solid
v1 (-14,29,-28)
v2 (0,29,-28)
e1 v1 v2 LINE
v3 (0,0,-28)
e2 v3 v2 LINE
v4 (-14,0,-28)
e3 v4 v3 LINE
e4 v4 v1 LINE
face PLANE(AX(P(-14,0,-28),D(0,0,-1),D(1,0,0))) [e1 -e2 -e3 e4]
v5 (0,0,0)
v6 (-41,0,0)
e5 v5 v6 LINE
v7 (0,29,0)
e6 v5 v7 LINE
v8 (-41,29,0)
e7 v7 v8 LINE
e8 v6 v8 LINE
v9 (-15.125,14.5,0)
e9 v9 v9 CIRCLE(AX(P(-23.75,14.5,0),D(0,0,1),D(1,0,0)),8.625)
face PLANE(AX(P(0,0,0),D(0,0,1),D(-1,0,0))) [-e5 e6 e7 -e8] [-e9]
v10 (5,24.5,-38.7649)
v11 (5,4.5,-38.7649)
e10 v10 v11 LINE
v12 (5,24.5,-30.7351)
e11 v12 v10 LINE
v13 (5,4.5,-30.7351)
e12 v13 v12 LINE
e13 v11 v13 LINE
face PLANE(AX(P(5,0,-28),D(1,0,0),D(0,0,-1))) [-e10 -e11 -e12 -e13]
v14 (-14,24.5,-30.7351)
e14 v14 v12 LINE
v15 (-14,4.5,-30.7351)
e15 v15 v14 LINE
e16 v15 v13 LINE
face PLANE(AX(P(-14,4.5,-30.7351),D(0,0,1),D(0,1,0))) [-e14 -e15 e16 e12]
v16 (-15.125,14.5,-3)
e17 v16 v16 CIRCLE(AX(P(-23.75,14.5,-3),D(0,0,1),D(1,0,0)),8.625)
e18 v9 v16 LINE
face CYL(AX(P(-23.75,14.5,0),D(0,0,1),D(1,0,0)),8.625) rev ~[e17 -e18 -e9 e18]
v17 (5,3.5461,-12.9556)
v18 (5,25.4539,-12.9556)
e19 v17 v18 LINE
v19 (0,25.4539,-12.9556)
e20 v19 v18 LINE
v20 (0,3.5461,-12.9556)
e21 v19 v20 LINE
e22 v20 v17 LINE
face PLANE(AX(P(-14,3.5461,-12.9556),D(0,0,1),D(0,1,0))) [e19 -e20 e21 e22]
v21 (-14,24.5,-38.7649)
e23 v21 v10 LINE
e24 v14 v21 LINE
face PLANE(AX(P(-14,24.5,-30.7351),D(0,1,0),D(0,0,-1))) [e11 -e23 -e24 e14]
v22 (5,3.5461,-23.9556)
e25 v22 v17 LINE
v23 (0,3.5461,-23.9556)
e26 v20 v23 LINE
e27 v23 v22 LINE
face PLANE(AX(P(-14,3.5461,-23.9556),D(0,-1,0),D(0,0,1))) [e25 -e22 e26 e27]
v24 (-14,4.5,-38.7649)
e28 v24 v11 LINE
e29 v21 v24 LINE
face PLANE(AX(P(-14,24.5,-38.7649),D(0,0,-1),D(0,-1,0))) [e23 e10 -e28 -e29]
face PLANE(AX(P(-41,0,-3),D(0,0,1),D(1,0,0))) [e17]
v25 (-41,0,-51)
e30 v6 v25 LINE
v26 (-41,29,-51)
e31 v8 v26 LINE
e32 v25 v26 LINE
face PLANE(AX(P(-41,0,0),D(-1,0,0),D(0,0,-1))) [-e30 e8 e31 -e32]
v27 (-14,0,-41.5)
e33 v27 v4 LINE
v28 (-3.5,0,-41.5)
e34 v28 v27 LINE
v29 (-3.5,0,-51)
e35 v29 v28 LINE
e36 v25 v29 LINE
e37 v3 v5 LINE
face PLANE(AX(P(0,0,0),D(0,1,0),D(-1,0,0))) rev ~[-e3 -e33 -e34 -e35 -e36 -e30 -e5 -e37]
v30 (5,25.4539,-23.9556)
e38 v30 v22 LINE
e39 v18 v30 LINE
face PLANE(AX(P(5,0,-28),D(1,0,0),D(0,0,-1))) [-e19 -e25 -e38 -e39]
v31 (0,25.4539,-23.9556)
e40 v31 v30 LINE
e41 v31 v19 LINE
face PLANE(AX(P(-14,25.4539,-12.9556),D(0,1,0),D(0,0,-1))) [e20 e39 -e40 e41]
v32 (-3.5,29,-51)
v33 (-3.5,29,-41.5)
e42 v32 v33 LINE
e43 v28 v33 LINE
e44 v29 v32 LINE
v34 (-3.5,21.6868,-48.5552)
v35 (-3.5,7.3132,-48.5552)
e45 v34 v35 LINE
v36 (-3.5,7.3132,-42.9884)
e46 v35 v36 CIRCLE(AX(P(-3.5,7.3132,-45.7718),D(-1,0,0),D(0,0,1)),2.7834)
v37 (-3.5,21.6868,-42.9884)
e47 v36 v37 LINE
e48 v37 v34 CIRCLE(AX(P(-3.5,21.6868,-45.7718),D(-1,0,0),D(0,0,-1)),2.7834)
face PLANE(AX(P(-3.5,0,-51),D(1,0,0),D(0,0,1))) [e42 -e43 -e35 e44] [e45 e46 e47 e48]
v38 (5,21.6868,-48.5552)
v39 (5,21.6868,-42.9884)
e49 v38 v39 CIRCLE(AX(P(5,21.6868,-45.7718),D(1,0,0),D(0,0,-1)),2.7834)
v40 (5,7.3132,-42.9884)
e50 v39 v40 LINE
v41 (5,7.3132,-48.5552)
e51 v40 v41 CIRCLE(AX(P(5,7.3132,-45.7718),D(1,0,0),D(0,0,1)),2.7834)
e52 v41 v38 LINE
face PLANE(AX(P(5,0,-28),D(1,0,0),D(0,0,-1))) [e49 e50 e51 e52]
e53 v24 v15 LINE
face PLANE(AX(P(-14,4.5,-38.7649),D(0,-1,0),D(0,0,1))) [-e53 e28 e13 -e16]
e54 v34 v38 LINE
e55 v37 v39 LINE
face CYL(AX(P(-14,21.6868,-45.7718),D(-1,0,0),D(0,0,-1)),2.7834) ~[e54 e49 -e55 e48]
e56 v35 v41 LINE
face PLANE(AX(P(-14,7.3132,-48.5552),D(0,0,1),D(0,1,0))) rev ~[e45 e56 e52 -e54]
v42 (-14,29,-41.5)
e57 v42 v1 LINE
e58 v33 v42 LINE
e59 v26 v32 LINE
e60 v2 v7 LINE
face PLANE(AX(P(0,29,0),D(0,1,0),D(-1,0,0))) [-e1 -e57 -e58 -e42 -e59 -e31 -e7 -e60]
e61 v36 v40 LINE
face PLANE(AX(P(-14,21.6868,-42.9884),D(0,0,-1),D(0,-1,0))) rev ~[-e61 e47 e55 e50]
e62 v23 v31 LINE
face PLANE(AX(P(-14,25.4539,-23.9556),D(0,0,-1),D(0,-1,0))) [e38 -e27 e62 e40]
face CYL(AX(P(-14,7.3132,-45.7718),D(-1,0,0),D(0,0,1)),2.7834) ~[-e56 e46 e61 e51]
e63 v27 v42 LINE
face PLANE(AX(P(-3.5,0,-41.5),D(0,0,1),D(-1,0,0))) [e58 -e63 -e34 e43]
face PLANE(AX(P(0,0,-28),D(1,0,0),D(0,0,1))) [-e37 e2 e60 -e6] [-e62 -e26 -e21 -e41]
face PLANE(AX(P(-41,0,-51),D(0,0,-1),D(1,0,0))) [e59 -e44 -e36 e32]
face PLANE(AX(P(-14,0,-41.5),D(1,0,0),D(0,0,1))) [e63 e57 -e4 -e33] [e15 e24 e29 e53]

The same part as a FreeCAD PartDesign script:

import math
import FreeCAD as App
import Part
import Sketcher

V = App.Vector
Q = App.Units.Quantity

doc = App.newDocument("Part")
params = doc.addObject("Spreadsheet::Sheet", "Params")
for row, (alias, value) in enumerate([
    ("sketch1_width", "41 mm"),
    ("sketch1_height", "51 mm"),
    ("sketch1_width2", "10.5 mm"),
    ("sketch1_width3", "37.5 mm"),
    ("sketch1_height2", "13.5 mm"),
    ("pad1_length", "29 mm"),
    ("sketch2_diameter", "17.25 mm"),
    ("pocket1_length", "3 mm"),
    ("sketch3_width", "20 mm"),
    ("sketch3_height", "11 mm"),
    ("pad2_length", "19 mm"),
], start=1):
    params.set(f"A{row}", alias)
    params.set(f"B{row}", "=" + value)
    params.setAlias(f"B{row}", alias)

body = doc.addObject("PartDesign::Body", "Body")

sketch1 = doc.addObject("Sketcher::SketchObject", "Sketch")
body.addObject(sketch1)
sketch1.AttachmentSupport = (doc.XZ_Plane, [""])
sketch1.MapMode = "FlatFace"
sketch1.addGeometry([
    Part.LineSegment(V(-41, 0, 0), V(0, 0, 0)),
    Part.LineSegment(V(0, 0, 0), V(0, -28, 0)),
    Part.LineSegment(V(0, -28, 0), V(-14, -28, 0)),
    Part.LineSegment(V(-14, -28, 0), V(-14, -42, 0)),
    Part.LineSegment(V(-14, -42, 0), V(-4, -42, 0)),
    Part.LineSegment(V(-4, -42, 0), V(-4, -51, 0)),
    Part.LineSegment(V(-4, -51, 0), V(-41, -51, 0)),
    Part.LineSegment(V(-41, -51, 0), V(-41, 0, 0)),
], False)
sketch1.addConstraint([
    Sketcher.Constraint("Coincident", 0, 2, 1, 1),
    Sketcher.Constraint("Coincident", 1, 2, 2, 1),
    Sketcher.Constraint("Coincident", 2, 2, 3, 1),
    Sketcher.Constraint("Coincident", 3, 2, 4, 1),
    Sketcher.Constraint("Coincident", 4, 2, 5, 1),
    Sketcher.Constraint("Coincident", 5, 2, 6, 1),
    Sketcher.Constraint("Coincident", 6, 2, 7, 1),
    Sketcher.Constraint("Coincident", 7, 2, 0, 1),
    Sketcher.Constraint("Horizontal", 0),
    Sketcher.Constraint("Vertical", 1),
    Sketcher.Constraint("Horizontal", 2),
    Sketcher.Constraint("Vertical", 3),
    Sketcher.Constraint("Horizontal", 4),
    Sketcher.Constraint("Vertical", 5),
    Sketcher.Constraint("Horizontal", 6),
    Sketcher.Constraint("Vertical", 7),
    Sketcher.Constraint("Coincident", 0, 2, -1, 1),
    Sketcher.Constraint("DistanceX", 0, 1, 0, 2, Q("41 mm")),
    Sketcher.Constraint("DistanceY", 7, 1, 7, 2, Q("51 mm")),
    Sketcher.Constraint("DistanceX", 4, 1, 4, 2, Q("10.5 mm")),
    Sketcher.Constraint("DistanceX", 6, 2, 6, 1, Q("37.5 mm")),
    Sketcher.Constraint("DistanceY", 3, 2, 3, 1, Q("13.5 mm")),
    Sketcher.Constraint("DistanceY", 5, 2, 5, 1, Q("9.5 mm")),
])
sketch1.setExpression("Constraints[17]", "Params.sketch1_width")
sketch1.setExpression("Constraints[18]", "Params.sketch1_height")
sketch1.setExpression("Constraints[19]", "Params.sketch1_width2")
sketch1.setExpression("Constraints[20]", "Params.sketch1_width3")
sketch1.setExpression("Constraints[21]", "Params.sketch1_height2")
pad1 = doc.addObject("PartDesign::Pad", "Pad")
body.addObject(pad1)
pad1.Profile = sketch1
pad1.setExpression("Length", "Params.pad1_length")
pad1.Reversed = True

sketch2 = doc.addObject("Sketcher::SketchObject", "Sketch001")
body.addObject(sketch2)
sketch2.AttachmentSupport = (doc.XY_Plane, [""])
sketch2.MapMode = "FlatFace"
sketch2.addGeometry(Part.Circle(V(-24, 14, 0), V(0, 0, 1), 9), False)
sketch2.addConstraint([
    Sketcher.Constraint("Diameter", 0, Q("17.25 mm")),
    Sketcher.Constraint("DistanceY", -1, 1, 0, 3, Q("14.5 mm")),
    Sketcher.Constraint("DistanceX", 0, 3, -1, 1, Q("23.75 mm")),
])
sketch2.setExpression("Constraints[0]", "Params.sketch2_diameter")
pocket1 = doc.addObject("PartDesign::Pocket", "Pocket")
body.addObject(pocket1)
pocket1.Profile = sketch2
pocket1.setExpression("Length", "Params.pocket1_length")

sketch3 = doc.addObject("Sketcher::SketchObject", "Sketch002")
body.addObject(sketch3)
sketch3.AttachmentSupport = (doc.YZ_Plane, [""])
sketch3.MapMode = "FlatFace"
sketch3.AttachmentOffset = App.Placement(V(0, 0, -14), App.Rotation())
sketch3.addGeometry([
    Part.LineSegment(V(24.5, -38.8, 0), V(24.5, -30.7, 0)),
    Part.LineSegment(V(24.5, -30.7, 0), V(4.5, -30.7, 0)),
    Part.LineSegment(V(4.5, -30.7, 0), V(4.5, -38.8, 0)),
    Part.LineSegment(V(4.5, -38.8, 0), V(24.5, -38.8, 0)),
    Part.LineSegment(V(25.5, -24, 0), V(25.5, -13, 0)),
    Part.LineSegment(V(25.5, -13, 0), V(3.5, -13, 0)),
    Part.LineSegment(V(3.5, -13, 0), V(3.5, -24, 0)),
    Part.LineSegment(V(3.5, -24, 0), V(25.5, -24, 0)),
    Part.ArcOfCircle(Part.Circle(V(7.3, -45.8, 0), V(0, 0, 1), 2.8), math.radians(90), math.radians(270)),
    Part.LineSegment(V(7.3, -48.6, 0), V(21.7, -48.6, 0)),
    Part.ArcOfCircle(Part.Circle(V(21.7, -45.8, 0), V(0, 0, 1), 2.8), math.radians(-90), math.radians(90)),
    Part.LineSegment(V(21.7, -43, 0), V(7.3, -43, 0)),
], False)
sketch3.addConstraint([
    Sketcher.Constraint("Coincident", 0, 2, 1, 1),
    Sketcher.Constraint("Coincident", 1, 2, 2, 1),
    Sketcher.Constraint("Coincident", 2, 2, 3, 1),
    Sketcher.Constraint("Coincident", 3, 2, 0, 1),
    Sketcher.Constraint("Coincident", 4, 2, 5, 1),
    Sketcher.Constraint("Coincident", 5, 2, 6, 1),
    Sketcher.Constraint("Coincident", 6, 2, 7, 1),
    Sketcher.Constraint("Coincident", 7, 2, 4, 1),
    Sketcher.Constraint("Tangent", 8, 2, 9, 1),
    Sketcher.Constraint("Tangent", 9, 2, 10, 1),
    Sketcher.Constraint("Tangent", 10, 2, 11, 1),
    Sketcher.Constraint("Tangent", 11, 2, 8, 1),
    Sketcher.Constraint("Vertical", 0),
    Sketcher.Constraint("Horizontal", 1),
    Sketcher.Constraint("Vertical", 2),
    Sketcher.Constraint("Horizontal", 3),
    Sketcher.Constraint("Vertical", 4),
    Sketcher.Constraint("Horizontal", 5),
    Sketcher.Constraint("Vertical", 6),
    Sketcher.Constraint("Horizontal", 7),
    Sketcher.Constraint("Horizontal", 9),
    Sketcher.Constraint("Horizontal", 11),
    Sketcher.Constraint("DistanceX", 1, 2, 1, 1, Q("20 mm")),
    Sketcher.Constraint("DistanceY", 4, 1, 4, 2, Q("11 mm")),
    Sketcher.Constraint("DistanceX", -1, 1, 0, 2, Q("24.5 mm")),
    Sketcher.Constraint("Radius", 8, Q("2.7834 mm")),
    Sketcher.Constraint("DistanceY", 8, 2, 1, 2, Q("17.82 mm")),
    Sketcher.Constraint("DistanceX", 5, 2, 5, 1, Q("21.9078 mm")),
    Sketcher.Constraint("DistanceX", 9, 1, 9, 2, Q("14.3736 mm")),
    Sketcher.Constraint("DistanceY", 0, 1, 0, 2, Q("8.0298 mm")),
    Sketcher.Constraint("DistanceY", 0, 2, -1, 1, Q("30.735 mm")),
    Sketcher.Constraint("DistanceX", -1, 1, 4, 2, Q("25.454 mm")),
    Sketcher.Constraint("DistanceX", 10, 3, 4, 2, Q("3.767 mm")),
    Sketcher.Constraint("DistanceY", 4, 2, -1, 1, Q("12.9556 mm")),
])
sketch3.setExpression("Constraints[22]", "Params.sketch3_width")
sketch3.setExpression("Constraints[23]", "Params.sketch3_height")
pad2 = doc.addObject("PartDesign::Pad", "Pad001")
body.addObject(pad2)
pad2.Profile = sketch3
pad2.setExpression("Length", "Params.pad2_length")

doc.recompute()
